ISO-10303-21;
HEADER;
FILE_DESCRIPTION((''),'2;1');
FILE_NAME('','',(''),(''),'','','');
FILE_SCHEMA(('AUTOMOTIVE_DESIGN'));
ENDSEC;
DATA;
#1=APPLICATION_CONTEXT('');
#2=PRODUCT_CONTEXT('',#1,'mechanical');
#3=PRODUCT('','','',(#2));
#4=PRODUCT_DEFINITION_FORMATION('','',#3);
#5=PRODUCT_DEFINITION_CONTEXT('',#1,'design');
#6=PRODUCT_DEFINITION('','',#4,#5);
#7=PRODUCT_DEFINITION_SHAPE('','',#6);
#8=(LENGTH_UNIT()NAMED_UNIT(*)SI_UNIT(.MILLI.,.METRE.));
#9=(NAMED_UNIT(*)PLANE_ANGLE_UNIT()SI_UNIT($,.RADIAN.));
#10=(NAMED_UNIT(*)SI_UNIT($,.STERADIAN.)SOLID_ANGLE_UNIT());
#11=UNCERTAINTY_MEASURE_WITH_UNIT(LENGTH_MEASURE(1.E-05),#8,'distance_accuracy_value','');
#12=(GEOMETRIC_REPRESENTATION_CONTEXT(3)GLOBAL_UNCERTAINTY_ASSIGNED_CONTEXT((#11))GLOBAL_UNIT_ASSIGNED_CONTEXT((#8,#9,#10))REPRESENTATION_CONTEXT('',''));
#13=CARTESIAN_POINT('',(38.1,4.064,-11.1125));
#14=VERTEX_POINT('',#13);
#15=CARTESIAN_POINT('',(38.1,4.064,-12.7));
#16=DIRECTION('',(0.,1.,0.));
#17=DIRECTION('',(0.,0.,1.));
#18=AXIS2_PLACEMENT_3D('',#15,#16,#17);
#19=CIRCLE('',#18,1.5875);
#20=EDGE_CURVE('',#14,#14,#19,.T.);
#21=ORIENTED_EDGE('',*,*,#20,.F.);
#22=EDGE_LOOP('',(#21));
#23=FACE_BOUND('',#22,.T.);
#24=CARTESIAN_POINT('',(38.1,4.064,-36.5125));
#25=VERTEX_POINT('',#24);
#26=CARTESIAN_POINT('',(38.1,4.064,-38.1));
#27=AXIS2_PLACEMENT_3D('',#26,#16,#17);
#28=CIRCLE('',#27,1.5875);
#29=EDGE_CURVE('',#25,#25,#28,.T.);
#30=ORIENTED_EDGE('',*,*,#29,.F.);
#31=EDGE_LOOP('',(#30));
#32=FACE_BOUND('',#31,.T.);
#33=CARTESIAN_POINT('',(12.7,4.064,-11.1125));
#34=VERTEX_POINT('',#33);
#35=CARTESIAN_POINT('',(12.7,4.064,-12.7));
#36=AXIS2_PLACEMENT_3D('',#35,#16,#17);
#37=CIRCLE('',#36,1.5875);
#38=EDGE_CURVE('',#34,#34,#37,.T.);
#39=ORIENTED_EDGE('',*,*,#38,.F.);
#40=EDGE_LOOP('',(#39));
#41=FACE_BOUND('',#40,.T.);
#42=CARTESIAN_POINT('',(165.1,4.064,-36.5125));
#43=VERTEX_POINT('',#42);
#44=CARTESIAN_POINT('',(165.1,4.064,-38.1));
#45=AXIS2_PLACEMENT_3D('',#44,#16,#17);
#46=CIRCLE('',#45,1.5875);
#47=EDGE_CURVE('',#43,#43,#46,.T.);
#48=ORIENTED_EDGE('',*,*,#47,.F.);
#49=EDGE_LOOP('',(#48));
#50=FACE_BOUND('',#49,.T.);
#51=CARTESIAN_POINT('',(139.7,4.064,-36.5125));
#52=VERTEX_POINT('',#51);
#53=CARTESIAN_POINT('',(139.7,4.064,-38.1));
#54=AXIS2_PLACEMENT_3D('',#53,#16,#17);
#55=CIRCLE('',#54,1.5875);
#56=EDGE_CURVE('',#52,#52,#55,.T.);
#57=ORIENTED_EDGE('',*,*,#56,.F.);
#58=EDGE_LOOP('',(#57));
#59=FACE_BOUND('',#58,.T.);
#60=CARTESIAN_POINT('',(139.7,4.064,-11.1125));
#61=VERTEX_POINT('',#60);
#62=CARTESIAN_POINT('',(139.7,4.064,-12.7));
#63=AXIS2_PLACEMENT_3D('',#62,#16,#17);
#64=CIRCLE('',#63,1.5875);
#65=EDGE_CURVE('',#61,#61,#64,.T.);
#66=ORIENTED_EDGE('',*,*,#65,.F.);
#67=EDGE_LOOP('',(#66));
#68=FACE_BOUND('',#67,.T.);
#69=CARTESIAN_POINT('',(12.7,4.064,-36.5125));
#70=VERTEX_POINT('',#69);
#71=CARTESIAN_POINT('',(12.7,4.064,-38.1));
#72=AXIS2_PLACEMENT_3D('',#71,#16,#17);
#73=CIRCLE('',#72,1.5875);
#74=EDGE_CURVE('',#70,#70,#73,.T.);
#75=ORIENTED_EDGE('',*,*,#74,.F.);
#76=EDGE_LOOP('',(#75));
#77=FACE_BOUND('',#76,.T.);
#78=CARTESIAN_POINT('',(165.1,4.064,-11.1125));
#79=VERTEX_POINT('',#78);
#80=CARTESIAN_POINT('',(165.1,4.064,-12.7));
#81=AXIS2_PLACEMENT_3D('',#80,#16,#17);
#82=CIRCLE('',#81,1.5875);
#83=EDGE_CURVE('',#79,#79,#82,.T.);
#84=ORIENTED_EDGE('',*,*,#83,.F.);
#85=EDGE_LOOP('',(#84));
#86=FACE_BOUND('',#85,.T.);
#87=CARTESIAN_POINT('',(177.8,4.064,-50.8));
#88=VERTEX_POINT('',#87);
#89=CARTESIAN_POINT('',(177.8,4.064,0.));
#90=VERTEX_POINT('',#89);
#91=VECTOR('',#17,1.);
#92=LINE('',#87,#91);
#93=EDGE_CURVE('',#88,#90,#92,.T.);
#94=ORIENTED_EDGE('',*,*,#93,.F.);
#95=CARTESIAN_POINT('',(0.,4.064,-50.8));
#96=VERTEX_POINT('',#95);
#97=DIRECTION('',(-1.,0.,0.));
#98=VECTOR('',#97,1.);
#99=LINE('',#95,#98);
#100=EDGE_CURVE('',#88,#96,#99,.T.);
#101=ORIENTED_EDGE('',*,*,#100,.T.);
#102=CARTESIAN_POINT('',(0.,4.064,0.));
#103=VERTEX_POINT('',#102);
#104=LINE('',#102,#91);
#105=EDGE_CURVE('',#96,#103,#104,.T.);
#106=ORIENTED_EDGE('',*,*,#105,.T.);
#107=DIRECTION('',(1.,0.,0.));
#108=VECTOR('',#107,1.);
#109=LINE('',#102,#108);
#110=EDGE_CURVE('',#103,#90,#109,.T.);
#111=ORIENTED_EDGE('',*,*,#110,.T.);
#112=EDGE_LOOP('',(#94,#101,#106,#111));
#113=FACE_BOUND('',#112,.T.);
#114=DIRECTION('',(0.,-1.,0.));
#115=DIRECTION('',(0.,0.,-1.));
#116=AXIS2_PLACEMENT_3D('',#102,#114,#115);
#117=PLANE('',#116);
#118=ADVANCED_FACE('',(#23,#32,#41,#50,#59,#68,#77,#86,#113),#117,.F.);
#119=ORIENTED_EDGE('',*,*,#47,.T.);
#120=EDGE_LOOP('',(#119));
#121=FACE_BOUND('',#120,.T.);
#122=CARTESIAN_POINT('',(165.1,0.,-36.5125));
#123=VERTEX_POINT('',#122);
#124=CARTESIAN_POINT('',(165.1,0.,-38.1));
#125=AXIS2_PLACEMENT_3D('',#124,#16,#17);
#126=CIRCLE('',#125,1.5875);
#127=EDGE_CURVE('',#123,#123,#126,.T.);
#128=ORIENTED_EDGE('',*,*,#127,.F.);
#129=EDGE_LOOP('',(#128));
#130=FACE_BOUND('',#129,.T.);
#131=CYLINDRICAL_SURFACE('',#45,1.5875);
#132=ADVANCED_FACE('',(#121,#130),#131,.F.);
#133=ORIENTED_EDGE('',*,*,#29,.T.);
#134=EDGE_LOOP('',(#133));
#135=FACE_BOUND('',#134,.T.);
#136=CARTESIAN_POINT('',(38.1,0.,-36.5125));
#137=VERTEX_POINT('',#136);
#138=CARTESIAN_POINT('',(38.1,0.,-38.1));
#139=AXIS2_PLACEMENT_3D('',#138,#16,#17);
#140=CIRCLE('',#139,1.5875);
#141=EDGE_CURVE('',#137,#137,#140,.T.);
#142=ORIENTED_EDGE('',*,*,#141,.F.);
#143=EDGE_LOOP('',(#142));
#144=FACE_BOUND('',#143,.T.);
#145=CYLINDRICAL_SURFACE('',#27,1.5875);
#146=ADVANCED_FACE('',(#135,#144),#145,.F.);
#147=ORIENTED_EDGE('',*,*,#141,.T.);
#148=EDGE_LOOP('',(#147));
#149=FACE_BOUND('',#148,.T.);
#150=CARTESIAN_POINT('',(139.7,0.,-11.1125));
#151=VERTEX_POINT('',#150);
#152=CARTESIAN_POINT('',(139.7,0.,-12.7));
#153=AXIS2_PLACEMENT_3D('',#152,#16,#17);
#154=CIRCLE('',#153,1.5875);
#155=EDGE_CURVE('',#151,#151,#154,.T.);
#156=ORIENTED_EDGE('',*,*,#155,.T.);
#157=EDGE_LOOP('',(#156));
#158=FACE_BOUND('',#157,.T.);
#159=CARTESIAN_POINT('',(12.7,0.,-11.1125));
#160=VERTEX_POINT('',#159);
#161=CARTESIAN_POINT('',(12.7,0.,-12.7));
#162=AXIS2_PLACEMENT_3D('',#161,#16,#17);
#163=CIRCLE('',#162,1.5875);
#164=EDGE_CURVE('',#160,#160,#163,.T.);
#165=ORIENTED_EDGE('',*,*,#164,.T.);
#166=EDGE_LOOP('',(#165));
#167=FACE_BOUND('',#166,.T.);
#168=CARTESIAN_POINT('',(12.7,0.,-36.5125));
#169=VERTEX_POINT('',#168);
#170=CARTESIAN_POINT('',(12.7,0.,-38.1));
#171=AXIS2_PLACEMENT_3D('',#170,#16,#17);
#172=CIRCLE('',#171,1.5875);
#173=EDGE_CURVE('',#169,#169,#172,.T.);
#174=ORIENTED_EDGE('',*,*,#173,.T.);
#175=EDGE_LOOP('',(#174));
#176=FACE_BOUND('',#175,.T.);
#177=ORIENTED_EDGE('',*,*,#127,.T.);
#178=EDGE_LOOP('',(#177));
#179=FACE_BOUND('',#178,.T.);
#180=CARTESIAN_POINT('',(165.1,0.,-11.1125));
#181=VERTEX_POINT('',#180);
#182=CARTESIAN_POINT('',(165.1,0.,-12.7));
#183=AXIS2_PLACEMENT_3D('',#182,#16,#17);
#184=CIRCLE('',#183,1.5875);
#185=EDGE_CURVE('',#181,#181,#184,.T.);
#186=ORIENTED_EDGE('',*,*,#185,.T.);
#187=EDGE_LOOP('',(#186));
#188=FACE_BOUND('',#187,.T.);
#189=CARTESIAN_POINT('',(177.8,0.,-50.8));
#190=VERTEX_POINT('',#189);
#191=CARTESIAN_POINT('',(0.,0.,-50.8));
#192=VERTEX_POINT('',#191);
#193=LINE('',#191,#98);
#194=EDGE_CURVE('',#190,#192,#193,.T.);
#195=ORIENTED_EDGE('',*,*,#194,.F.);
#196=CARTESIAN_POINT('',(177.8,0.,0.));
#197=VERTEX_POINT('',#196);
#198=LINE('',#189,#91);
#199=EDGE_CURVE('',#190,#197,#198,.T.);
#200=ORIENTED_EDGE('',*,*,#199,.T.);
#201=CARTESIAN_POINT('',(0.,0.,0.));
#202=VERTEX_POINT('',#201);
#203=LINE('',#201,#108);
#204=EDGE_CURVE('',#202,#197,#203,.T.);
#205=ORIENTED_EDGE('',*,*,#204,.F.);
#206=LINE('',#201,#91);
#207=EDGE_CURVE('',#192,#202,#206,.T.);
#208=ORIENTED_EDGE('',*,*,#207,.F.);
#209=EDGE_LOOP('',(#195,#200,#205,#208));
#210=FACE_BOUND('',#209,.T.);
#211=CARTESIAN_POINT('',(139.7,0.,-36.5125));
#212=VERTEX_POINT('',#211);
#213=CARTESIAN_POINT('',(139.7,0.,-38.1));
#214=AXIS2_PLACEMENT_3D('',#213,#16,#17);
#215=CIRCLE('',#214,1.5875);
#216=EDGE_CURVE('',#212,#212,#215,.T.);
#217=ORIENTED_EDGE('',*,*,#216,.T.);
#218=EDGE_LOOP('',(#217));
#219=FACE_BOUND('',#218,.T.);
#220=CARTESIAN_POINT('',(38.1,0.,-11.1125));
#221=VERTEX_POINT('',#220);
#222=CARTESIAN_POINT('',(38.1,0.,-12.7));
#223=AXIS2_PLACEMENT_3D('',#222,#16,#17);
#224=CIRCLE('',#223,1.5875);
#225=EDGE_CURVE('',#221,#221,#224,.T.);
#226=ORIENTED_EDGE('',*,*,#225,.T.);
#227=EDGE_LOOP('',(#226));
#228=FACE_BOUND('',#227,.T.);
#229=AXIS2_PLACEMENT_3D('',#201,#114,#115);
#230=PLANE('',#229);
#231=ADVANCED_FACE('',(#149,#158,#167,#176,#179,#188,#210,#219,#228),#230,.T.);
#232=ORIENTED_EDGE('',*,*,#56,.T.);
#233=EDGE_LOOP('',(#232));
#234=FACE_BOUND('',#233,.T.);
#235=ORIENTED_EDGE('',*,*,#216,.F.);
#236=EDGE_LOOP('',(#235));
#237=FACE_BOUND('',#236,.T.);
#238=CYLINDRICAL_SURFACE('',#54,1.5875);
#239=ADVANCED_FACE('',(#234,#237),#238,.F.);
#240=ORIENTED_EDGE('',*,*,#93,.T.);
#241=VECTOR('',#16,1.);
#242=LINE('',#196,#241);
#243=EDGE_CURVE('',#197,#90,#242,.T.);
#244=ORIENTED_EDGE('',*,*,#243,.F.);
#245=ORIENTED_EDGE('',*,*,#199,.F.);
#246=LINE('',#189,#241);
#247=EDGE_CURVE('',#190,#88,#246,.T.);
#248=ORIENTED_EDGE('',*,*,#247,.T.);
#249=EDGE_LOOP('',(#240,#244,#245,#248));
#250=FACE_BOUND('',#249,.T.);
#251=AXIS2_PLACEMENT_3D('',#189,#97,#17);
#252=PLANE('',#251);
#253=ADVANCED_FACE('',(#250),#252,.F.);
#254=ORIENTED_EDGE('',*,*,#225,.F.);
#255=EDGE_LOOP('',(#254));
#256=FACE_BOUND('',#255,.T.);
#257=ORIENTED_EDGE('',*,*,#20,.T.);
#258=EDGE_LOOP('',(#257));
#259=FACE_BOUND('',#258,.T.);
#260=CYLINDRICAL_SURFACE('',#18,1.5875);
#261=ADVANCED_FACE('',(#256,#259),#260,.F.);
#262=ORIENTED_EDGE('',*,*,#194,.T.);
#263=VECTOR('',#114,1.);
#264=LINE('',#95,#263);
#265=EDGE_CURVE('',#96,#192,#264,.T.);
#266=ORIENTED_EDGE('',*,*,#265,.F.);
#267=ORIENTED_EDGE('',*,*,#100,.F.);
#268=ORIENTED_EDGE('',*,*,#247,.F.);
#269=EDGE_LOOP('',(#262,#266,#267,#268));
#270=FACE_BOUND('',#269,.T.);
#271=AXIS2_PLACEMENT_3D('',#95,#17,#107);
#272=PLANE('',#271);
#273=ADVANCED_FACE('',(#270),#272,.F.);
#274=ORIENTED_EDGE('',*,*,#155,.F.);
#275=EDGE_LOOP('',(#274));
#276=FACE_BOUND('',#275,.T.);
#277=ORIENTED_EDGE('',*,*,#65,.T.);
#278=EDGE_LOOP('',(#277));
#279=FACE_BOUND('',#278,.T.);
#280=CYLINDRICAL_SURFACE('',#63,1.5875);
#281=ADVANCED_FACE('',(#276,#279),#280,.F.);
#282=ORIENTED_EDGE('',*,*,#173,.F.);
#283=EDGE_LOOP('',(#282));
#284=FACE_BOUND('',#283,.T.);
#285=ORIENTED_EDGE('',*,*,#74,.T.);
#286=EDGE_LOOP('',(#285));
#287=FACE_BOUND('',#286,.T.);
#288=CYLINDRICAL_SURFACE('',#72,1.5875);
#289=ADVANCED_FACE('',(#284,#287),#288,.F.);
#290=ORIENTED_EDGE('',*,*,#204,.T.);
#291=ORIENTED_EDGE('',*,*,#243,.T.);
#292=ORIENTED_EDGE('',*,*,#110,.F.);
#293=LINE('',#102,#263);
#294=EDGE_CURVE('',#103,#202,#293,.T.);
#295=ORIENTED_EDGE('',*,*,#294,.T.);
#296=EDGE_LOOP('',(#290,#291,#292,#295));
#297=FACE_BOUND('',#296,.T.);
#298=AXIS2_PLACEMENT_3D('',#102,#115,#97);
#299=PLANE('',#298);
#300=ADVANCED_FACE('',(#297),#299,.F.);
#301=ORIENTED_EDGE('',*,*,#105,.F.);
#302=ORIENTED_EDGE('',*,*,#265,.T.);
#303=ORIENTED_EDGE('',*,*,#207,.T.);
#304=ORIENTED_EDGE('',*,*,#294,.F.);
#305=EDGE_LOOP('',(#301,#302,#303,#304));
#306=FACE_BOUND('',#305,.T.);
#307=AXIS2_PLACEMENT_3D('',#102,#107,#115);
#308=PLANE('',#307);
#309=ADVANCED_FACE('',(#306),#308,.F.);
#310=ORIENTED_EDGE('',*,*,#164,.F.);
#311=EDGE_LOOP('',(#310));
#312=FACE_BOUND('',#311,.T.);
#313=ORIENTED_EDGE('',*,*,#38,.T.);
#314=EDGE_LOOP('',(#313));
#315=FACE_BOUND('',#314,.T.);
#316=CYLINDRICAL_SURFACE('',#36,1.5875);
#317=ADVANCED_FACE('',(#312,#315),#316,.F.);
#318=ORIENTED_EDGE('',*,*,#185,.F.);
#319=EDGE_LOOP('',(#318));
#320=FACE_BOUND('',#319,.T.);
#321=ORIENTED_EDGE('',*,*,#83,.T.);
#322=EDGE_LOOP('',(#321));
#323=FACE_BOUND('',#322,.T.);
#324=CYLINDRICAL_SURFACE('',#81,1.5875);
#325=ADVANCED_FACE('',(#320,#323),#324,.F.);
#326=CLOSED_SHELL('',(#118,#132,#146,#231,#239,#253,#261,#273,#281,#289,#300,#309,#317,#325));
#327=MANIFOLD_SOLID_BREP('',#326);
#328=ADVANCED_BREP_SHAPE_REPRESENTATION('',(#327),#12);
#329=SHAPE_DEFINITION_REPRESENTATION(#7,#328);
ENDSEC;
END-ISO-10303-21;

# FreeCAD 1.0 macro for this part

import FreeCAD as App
import Part
import Sketcher
Q = App.Units.Quantity


def add_polygon(sketch, points):
    """Adds a closed chain of lines whose ends are joined by coincident constraints."""
    first, n = sketch.GeometryCount, len(points)
    for a, b in zip(points, points[1:] + points[:1]):
        sketch.addGeometry(Part.LineSegment(App.Vector(*a, 0), App.Vector(*b, 0)), False)
    for i in range(n):
        sketch.addConstraint(Sketcher.Constraint("Coincident", first + i, 2, first + (i + 1) % n, 1))

doc = App.newDocument("Part")
body = doc.addObject("PartDesign::Body", "Body")

# Sketch on XZ plane
sketch1 = body.newObject("Sketcher::SketchObject", "Sketch")
sketch1.AttachmentSupport = (doc.getObject("XZ_Plane"), [""])
sketch1.MapMode = "FlatFace"
add_polygon(sketch1, [(0, -51), (0, 0), (305, 0), (305, -51)])  # lines 0-3
sketch1.addConstraint([
    Sketcher.Constraint("Vertical", 0),
    Sketcher.Constraint("Horizontal", 1),
    Sketcher.Constraint("Vertical", 2),
    Sketcher.Constraint("Horizontal", 3),
    Sketcher.Constraint("Coincident", 0, 2, -1, 1),
    Sketcher.Constraint("DistanceX", 1, 1, 1, 2, Q("12 in")),
    Sketcher.Constraint("DistanceY", 0, 1, 0, 2, Q("2 in")),
])
pad1 = body.newObject("PartDesign::Pad", "Pad")
pad1.Profile = sketch1
pad1.Length = Q("0.16 in")
pad1.Reversed = True

# Sketch on XZ plane
sketch2 = body.newObject("Sketcher::SketchObject", "Sketch001")
sketch2.AttachmentSupport = (doc.getObject("XZ_Plane"), [""])
sketch2.MapMode = "FlatFace"
sketch2.AttachmentOffset = App.Placement(App.Vector(0, 0, -0.16 * 25.4), App.Rotation())
sketch2.addGeometry([
    Part.Circle(App.Vector(12.7, -12.7, 0), App.Vector(0, 0, 1), 1.6),  # 0
    Part.Circle(App.Vector(38.1, -38.1, 0), App.Vector(0, 0, 1), 1.6),  # 1
    Part.Circle(App.Vector(12.7, -38.1, 0), App.Vector(0, 0, 1), 1.6),  # 2
    Part.Circle(App.Vector(38.1, -12.7, 0), App.Vector(0, 0, 1), 1.6),  # 3
    Part.Circle(App.Vector(139.7, -12.7, 0), App.Vector(0, 0, 1), 1.6),  # 4
    Part.Circle(App.Vector(165.1, -38.1, 0), App.Vector(0, 0, 1), 1.6),  # 5
    Part.Circle(App.Vector(139.7, -38.1, 0), App.Vector(0, 0, 1), 1.6),  # 6
    Part.Circle(App.Vector(165.1, -12.7, 0), App.Vector(0, 0, 1), 1.6),  # 7
], False)
sketch2.addConstraint([
    Sketcher.Constraint("Equal", 0, 1),
    Sketcher.Constraint("Equal", 1, 2),
    Sketcher.Constraint("Equal", 2, 3),
    Sketcher.Constraint("Equal", 3, 4),
    Sketcher.Constraint("Equal", 4, 5),
    Sketcher.Constraint("Equal", 5, 6),
    Sketcher.Constraint("Equal", 6, 7),
    Sketcher.Constraint("Horizontal", 1, 3, 2, 3),
    Sketcher.Constraint("Horizontal", 0, 3, 3, 3),
    Sketcher.Constraint("Horizontal", 3, 3, 4, 3),
    Sketcher.Constraint("Horizontal", 2, 3, 5, 3),
    Sketcher.Constraint("Horizontal", 5, 3, 6, 3),
    Sketcher.Constraint("Horizontal", 4, 3, 7, 3),
    Sketcher.Constraint("Vertical", 0, 3, 2, 3),
    Sketcher.Constraint("Vertical", 1, 3, 3, 3),
    Sketcher.Constraint("Vertical", 4, 3, 6, 3),
    Sketcher.Constraint("Vertical", 5, 3, 7, 3),
    Sketcher.Constraint("Diameter", 0, Q("0.125 in")),
    Sketcher.Constraint("DistanceX", 0, 3, 1, 3, Q("1 in")),
    Sketcher.Constraint("DistanceY", 1, 3, 0, 3, Q("1 in")),
    Sketcher.Constraint("DistanceX", 3, 3, 4, 3, Q("4 in")),
    Sketcher.Constraint("DistanceX", 4, 3, 5, 3, Q("1 in")),
    Sketcher.Constraint("DistanceX", -1, 1, 0, 3, Q("0.5 in")),
    Sketcher.Constraint("DistanceY", 0, 3, -1, 1, Q("0.5 in")),
])
doc.recompute()
hole = body.newObject("PartDesign::Hole", "Hole")
hole.Profile = sketch2
hole.ThreadType = "None"
hole.Diameter = Q("0.125 in")
hole.DepthType = "ThroughAll"
hole.Reversed = True

# Sketch on XZ plane
sketch3 = body.newObject("Sketcher::SketchObject", "Sketch002")
sketch3.AttachmentSupport = (doc.getObject("XZ_Plane"), [""])
sketch3.MapMode = "FlatFace"
sketch3.AttachmentOffset = App.Placement(App.Vector(0, 0, -0.16 * 25.4), App.Rotation())
add_polygon(sketch3, [(178, -51), (178, 0), (305, 0), (305, -51)])  # lines 0-3
sketch3.addConstraint([
    Sketcher.Constraint("Vertical", 0),
    Sketcher.Constraint("Horizontal", 1),
    Sketcher.Constraint("Vertical", 2),
    Sketcher.Constraint("Horizontal", 3),
    Sketcher.Constraint("PointOnObject", 0, 2, -1),
    Sketcher.Constraint("DistanceX", 1, 1, 1, 2, Q("5 in")),
    Sketcher.Constraint("DistanceY", 0, 1, 0, 2, Q("2 in")),
    Sketcher.Constraint("DistanceX", -1, 1, 0, 2, Q("7 in")),
])
pocket1 = body.newObject("PartDesign::Pocket", "Pocket")
pocket1.Profile = sketch3
pocket1.Type = "ThroughAll"
pocket1.Reversed = True

doc.recompute()
